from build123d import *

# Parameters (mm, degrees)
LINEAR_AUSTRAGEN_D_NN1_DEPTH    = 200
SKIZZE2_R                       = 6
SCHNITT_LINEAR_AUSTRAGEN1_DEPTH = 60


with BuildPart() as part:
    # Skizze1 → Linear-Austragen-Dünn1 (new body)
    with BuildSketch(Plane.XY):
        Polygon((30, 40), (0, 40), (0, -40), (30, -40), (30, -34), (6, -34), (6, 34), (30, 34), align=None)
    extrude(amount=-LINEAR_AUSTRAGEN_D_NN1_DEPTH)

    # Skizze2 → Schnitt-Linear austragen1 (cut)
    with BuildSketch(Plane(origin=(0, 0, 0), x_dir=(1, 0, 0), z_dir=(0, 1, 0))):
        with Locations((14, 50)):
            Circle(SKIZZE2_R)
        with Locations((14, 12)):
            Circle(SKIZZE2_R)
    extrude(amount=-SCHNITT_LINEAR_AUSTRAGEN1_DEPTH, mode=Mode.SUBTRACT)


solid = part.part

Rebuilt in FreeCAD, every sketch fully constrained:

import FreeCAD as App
import Part
import Sketcher

V = App.Vector
Q = App.Units.Quantity

doc = App.newDocument("Part")
body = doc.addObject("PartDesign::Body", "Body")

sketch1 = body.newObject("Sketcher::SketchObject", "Sketch")
sketch1.AttachmentSupport = (doc.getObject("XY_Plane"), [""])
sketch1.MapMode = "FlatFace"
sketch1.addGeometry([
    Part.LineSegment(V(30, 40, 0), V(0, 40, 0)),
    Part.LineSegment(V(0, 40, 0), V(0, -40, 0)),
    Part.LineSegment(V(0, -40, 0), V(30, -40, 0)),
    Part.LineSegment(V(30, -40, 0), V(30, -34, 0)),
    Part.LineSegment(V(30, -34, 0), V(6, -34, 0)),
    Part.LineSegment(V(6, -34, 0), V(6, 34, 0)),
    Part.LineSegment(V(6, 34, 0), V(30, 34, 0)),
    Part.LineSegment(V(30, 34, 0), V(30, 40, 0)),
], False)
sketch1.addConstraint([
    Sketcher.Constraint("Coincident", 0, 2, 1, 1),
    Sketcher.Constraint("Coincident", 1, 2, 2, 1),
    Sketcher.Constraint("Coincident", 2, 2, 3, 1),
    Sketcher.Constraint("Coincident", 3, 2, 4, 1),
    Sketcher.Constraint("Coincident", 4, 2, 5, 1),
    Sketcher.Constraint("Coincident", 5, 2, 6, 1),
    Sketcher.Constraint("Coincident", 6, 2, 7, 1),
    Sketcher.Constraint("Coincident", 7, 2, 0, 1),
    Sketcher.Constraint("Horizontal", 0),
    Sketcher.Constraint("Vertical", 1),
    Sketcher.Constraint("Horizontal", 2),
    Sketcher.Constraint("Vertical", 3),
    Sketcher.Constraint("Horizontal", 4),
    Sketcher.Constraint("Vertical", 5),
    Sketcher.Constraint("Horizontal", 6),
    Sketcher.Constraint("Vertical", 7),
    Sketcher.Constraint("Symmetric", 0, 2, 1, 2, -1, 1),
    Sketcher.Constraint("Symmetric", 3, 2, 6, 2, -1),
    Sketcher.Constraint("DistanceX", 0, 2, 0, 1, Q("30 mm")),
    Sketcher.Constraint("DistanceX", 4, 2, 4, 1, Q("24 mm")),
    Sketcher.Constraint("DistanceY", 1, 2, 1, 1, Q("80 mm")),
    Sketcher.Constraint("DistanceY", 3, 1, 3, 2, Q("6 mm")),
])
pad1 = body.newObject("PartDesign::Pad", "Pad")
pad1.Profile = sketch1
pad1.Length = 200
pad1.Reversed = True

sketch2 = body.newObject("Sketcher::SketchObject", "Sketch001")
sketch2.AttachmentSupport = (doc.getObject("XZ_Plane"), [""])
sketch2.MapMode = "FlatFace"
sketch2.addGeometry([
    Part.Circle(V(14, -50, 0), V(0, 0, 1), 6),
    Part.Circle(V(14, -12, 0), V(0, 0, 1), 6),
], False)
sketch2.addConstraint([
    Sketcher.Constraint("Equal", 0, 1),
    Sketcher.Constraint("Vertical", 0, 3, 1, 3),
    Sketcher.Constraint("Diameter", 0, Q("12 mm")),
    Sketcher.Constraint("DistanceX", -1, 1, 0, 3, Q("14 mm")),
    Sketcher.Constraint("DistanceY", 0, 3, -1, 1, Q("50 mm")),
    Sketcher.Constraint("DistanceY", 1, 3, -1, 1, Q("12 mm")),
])
pocket1 = body.newObject("PartDesign::Pocket", "Pocket")
pocket1.Profile = sketch2
pocket1.Length = 60
pocket1.Reversed = True

doc.recompute()
